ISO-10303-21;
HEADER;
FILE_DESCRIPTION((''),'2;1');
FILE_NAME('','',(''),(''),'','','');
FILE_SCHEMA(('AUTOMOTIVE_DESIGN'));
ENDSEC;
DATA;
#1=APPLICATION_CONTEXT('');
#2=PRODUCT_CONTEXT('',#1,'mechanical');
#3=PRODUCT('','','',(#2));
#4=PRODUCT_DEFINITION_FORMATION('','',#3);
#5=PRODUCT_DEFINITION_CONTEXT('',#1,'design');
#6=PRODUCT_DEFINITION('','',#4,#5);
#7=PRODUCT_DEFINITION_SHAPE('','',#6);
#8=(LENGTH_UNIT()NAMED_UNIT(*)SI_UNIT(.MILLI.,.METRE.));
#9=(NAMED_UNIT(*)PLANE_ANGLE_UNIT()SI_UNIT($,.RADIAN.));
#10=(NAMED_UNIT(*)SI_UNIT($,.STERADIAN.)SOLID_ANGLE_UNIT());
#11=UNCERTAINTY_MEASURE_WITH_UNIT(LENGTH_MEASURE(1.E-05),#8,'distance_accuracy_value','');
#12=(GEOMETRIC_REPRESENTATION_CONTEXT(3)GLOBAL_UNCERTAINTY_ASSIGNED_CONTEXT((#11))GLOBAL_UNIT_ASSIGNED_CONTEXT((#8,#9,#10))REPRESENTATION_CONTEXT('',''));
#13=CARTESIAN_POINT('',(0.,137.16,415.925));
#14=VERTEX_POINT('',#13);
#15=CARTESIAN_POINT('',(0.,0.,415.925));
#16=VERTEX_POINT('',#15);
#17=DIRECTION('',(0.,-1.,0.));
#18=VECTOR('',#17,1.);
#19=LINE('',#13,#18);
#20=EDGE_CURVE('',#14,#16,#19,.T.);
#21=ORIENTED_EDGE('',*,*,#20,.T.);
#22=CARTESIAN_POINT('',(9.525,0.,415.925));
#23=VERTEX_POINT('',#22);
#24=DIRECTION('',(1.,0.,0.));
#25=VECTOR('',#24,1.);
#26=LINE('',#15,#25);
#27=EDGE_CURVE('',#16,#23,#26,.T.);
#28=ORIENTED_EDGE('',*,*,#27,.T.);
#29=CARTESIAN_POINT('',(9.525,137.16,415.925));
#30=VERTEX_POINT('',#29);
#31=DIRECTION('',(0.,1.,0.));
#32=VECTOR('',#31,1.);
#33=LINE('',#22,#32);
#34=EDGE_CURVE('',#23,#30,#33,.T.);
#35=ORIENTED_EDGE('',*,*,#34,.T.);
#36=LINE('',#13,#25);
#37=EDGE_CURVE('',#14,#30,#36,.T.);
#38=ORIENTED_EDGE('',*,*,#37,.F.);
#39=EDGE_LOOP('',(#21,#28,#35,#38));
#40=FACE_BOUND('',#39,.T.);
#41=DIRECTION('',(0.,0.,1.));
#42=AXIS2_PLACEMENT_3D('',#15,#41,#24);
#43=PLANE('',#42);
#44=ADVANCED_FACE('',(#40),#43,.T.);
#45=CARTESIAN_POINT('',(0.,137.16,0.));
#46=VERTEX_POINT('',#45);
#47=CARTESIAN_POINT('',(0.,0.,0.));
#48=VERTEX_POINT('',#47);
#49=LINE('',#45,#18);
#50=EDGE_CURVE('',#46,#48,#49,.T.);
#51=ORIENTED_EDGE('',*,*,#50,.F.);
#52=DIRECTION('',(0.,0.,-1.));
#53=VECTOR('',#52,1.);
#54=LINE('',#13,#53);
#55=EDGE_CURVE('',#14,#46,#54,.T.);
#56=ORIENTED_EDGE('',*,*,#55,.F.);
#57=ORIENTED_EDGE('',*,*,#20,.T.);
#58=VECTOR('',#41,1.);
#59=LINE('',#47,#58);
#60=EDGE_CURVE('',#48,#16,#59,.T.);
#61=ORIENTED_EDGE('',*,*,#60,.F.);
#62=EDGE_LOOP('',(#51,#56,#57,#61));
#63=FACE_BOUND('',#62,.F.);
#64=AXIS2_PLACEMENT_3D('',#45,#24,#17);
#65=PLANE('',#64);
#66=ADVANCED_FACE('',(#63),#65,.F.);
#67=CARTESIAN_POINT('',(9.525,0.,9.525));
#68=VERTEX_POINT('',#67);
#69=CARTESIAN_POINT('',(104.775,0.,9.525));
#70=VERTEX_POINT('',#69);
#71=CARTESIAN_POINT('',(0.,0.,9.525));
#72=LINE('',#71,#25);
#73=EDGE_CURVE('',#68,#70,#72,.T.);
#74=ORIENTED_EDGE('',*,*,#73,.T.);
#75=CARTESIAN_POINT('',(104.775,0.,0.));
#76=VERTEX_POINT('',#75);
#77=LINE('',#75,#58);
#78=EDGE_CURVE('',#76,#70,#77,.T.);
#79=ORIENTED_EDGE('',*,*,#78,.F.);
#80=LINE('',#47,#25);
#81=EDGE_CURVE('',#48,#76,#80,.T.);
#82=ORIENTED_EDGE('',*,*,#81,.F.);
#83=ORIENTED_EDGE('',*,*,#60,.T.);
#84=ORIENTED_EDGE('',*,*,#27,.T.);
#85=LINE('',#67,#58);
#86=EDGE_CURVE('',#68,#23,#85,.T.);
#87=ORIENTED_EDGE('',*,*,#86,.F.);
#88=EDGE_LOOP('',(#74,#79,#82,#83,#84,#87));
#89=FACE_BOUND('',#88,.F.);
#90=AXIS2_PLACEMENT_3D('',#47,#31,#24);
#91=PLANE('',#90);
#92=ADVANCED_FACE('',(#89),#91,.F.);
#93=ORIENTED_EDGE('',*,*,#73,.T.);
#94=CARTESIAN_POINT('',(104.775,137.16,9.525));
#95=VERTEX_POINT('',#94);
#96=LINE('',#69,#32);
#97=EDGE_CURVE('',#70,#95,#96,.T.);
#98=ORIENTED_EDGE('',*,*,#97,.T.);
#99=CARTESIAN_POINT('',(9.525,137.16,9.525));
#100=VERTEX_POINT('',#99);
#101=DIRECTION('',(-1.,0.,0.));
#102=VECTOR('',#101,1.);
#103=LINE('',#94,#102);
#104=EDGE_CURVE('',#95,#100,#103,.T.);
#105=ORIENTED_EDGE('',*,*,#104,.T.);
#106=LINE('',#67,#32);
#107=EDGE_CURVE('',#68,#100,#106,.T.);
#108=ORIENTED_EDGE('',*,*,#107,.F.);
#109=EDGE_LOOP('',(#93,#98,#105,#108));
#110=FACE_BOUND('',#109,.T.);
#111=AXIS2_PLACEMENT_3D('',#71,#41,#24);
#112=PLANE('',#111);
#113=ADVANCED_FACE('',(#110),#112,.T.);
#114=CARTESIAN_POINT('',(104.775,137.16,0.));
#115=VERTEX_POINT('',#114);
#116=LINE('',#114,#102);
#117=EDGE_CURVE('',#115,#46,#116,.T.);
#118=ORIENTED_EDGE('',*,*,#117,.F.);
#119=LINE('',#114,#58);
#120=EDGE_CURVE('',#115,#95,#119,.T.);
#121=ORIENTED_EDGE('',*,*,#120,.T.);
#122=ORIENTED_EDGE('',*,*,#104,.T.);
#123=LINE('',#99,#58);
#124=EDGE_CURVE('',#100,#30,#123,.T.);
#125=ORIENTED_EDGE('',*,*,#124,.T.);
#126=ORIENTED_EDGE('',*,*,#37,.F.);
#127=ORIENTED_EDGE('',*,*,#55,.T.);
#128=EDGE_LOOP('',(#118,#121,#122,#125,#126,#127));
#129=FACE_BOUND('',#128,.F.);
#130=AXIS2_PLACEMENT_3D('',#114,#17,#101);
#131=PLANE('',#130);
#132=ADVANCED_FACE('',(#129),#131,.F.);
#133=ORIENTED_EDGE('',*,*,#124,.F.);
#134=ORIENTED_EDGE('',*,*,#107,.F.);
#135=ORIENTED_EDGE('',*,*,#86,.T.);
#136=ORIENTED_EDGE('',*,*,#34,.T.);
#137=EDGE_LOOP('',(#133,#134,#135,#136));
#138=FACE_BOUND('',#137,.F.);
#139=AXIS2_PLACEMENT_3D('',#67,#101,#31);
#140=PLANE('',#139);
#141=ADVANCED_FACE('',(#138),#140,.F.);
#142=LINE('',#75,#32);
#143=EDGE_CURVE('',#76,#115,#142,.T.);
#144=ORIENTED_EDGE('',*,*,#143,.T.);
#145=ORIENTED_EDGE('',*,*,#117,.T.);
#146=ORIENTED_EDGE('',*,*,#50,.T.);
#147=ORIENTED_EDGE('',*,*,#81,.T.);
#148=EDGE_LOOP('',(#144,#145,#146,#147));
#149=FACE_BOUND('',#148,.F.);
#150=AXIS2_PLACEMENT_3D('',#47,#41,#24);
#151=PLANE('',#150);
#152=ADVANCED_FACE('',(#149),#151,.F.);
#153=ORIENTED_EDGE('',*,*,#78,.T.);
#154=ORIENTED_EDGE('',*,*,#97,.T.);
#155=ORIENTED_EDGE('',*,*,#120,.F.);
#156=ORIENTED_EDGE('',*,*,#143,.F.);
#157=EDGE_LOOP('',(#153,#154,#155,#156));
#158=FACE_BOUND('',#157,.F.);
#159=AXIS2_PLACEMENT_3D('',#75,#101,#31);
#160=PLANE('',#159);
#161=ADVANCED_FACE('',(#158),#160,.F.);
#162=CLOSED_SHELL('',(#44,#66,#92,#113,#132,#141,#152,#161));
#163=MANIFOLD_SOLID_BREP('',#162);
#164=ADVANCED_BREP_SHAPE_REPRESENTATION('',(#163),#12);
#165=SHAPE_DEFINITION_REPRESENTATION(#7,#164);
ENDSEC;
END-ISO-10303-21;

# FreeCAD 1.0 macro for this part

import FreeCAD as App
import Part
import Sketcher
Q = App.Units.Quantity


def add_polygon(sketch, points):
    """Adds a closed chain of lines whose ends are joined by coincident constraints."""
    first, n = sketch.GeometryCount, len(points)
    for a, b in zip(points, points[1:] + points[:1]):
        sketch.addGeometry(Part.LineSegment(App.Vector(*a, 0), App.Vector(*b, 0)), False)
    for i in range(n):
        sketch.addConstraint(Sketcher.Constraint("Coincident", first + i, 2, first + (i + 1) % n, 1))

doc = App.newDocument("Part")
body = doc.addObject("PartDesign::Body", "Body")

# Sketch on XY plane
sketch1 = body.newObject("Sketcher::SketchObject", "Sketch")
sketch1.AttachmentSupport = (doc.getObject("XY_Plane"), [""])
sketch1.MapMode = "FlatFace"
add_polygon(sketch1, [(0, 137), (0, 0), (105, 0), (105, 137)])  # lines 0-3
sketch1.addConstraint(Sketcher.Constraint("Vertical", 0))
sketch1.addConstraint(Sketcher.Constraint("Horizontal", 1))
sketch1.addConstraint(Sketcher.Constraint("Vertical", 2))
sketch1.addConstraint(Sketcher.Constraint("Horizontal", 3))
sketch1.addConstraint(Sketcher.Constraint("Coincident", 0, 2, -1, 1))
sketch1.addConstraint(Sketcher.Constraint("DistanceY", 0, 2, 0, 1, Q("5.4 in")))
sketch1.addConstraint(Sketcher.Constraint("DistanceX", 1, 1, 1, 2, Q("4.125 in")))
pad1 = body.newObject("PartDesign::Pad", "Pad")
pad1.Profile = sketch1
pad1.Length = Q("0.375 in")

# Sketch on XY plane
sketch2 = body.newObject("Sketcher::SketchObject", "Sketch001")
sketch2.AttachmentSupport = (doc.getObject("XY_Plane"), [""])
sketch2.MapMode = "FlatFace"
sketch2.AttachmentOffset = App.Placement(App.Vector(0, 0, 0.375 * 25.4), App.Rotation())
add_polygon(sketch2, [(10, 137), (0, 137), (0, 0), (10, 0)])  # lines 0-3
sketch2.addConstraint(Sketcher.Constraint("Horizontal", 0))
sketch2.addConstraint(Sketcher.Constraint("Vertical", 1))
sketch2.addConstraint(Sketcher.Constraint("Horizontal", 2))
sketch2.addConstraint(Sketcher.Constraint("Vertical", 3))
sketch2.addConstraint(Sketcher.Constraint("Coincident", 1, 2, -1, 1))
sketch2.addConstraint(Sketcher.Constraint("DistanceX", 0, 2, 0, 1, Q("0.375 in")))
sketch2.addConstraint(Sketcher.Constraint("DistanceY", 1, 2, 1, 1, Q("5.4 in")))
pad2 = body.newObject("PartDesign::Pad", "Pad001")
pad2.Profile = sketch2
pad2.Length = Q("16 in")

doc.recompute()
